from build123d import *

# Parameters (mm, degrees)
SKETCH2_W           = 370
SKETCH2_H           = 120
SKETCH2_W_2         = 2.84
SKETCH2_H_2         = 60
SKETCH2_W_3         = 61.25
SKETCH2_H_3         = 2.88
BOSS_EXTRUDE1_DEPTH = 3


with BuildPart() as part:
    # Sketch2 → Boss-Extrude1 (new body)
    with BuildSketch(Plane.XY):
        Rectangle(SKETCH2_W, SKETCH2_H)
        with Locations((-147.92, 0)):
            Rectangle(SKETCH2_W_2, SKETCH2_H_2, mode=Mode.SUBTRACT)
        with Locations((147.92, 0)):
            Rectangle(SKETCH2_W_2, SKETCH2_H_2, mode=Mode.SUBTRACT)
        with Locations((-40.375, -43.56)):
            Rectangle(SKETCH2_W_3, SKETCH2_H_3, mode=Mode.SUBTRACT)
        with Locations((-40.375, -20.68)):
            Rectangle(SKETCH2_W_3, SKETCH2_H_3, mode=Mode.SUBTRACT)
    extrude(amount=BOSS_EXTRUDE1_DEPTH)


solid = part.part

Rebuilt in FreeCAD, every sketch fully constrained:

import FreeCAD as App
import Part
import Sketcher
from FreeCAD import Vector

doc = App.newDocument("Part")
body = doc.addObject("PartDesign::Body", "Body")

sketch1 = body.newObject("Sketcher::SketchObject", "Sketch")
sketch1.AttachmentSupport = (doc.getObject("XY_Plane"), [""])
sketch1.MapMode = "FlatFace"
sketch1.addGeometry(Part.LineSegment(Vector(-185, 60, 0), Vector(-185, -60, 0)), False)
sketch1.addGeometry(Part.LineSegment(Vector(-185, -60, 0), Vector(185, -60, 0)), False)
sketch1.addGeometry(Part.LineSegment(Vector(185, -60, 0), Vector(185, 60, 0)), False)
sketch1.addGeometry(Part.LineSegment(Vector(185, 60, 0), Vector(-185, 60, 0)), False)
sketch1.addGeometry(Part.LineSegment(Vector(-9.75, -45, 0), Vector(-71, -45, 0)), False)
sketch1.addGeometry(Part.LineSegment(Vector(-71, -45, 0), Vector(-71, -42.12, 0)), False)
sketch1.addGeometry(Part.LineSegment(Vector(-71, -42.12, 0), Vector(-9.75, -42.12, 0)), False)
sketch1.addGeometry(Part.LineSegment(Vector(-9.75, -42.12, 0), Vector(-9.75, -45, 0)), False)
sketch1.addGeometry(Part.LineSegment(Vector(-9.75, -22.12, 0), Vector(-71, -22.12, 0)), False)
sketch1.addGeometry(Part.LineSegment(Vector(-71, -22.12, 0), Vector(-71, -19.24, 0)), False)
sketch1.addGeometry(Part.LineSegment(Vector(-71, -19.24, 0), Vector(-9.75, -19.24, 0)), False)
sketch1.addGeometry(Part.LineSegment(Vector(-9.75, -19.24, 0), Vector(-9.75, -22.12, 0)), False)
sketch1.addGeometry(Part.LineSegment(Vector(-146.5, -30, 0), Vector(-149.34, -30, 0)), False)
sketch1.addGeometry(Part.LineSegment(Vector(-149.34, -30, 0), Vector(-149.34, 30, 0)), False)
sketch1.addGeometry(Part.LineSegment(Vector(-149.34, 30, 0), Vector(-146.5, 30, 0)), False)
sketch1.addGeometry(Part.LineSegment(Vector(-146.5, 30, 0), Vector(-146.5, -30, 0)), False)
sketch1.addGeometry(Part.LineSegment(Vector(149.34, -30, 0), Vector(146.5, -30, 0)), False)
sketch1.addGeometry(Part.LineSegment(Vector(146.5, -30, 0), Vector(146.5, 30, 0)), False)
sketch1.addGeometry(Part.LineSegment(Vector(146.5, 30, 0), Vector(149.34, 30, 0)), False)
sketch1.addGeometry(Part.LineSegment(Vector(149.34, 30, 0), Vector(149.34, -30, 0)), False)
sketch1.addConstraint(Sketcher.Constraint("Coincident", 0, 2, 1, 1))
sketch1.addConstraint(Sketcher.Constraint("Coincident", 1, 2, 2, 1))
sketch1.addConstraint(Sketcher.Constraint("Coincident", 2, 2, 3, 1))
sketch1.addConstraint(Sketcher.Constraint("Coincident", 3, 2, 0, 1))
sketch1.addConstraint(Sketcher.Constraint("Coincident", 4, 2, 5, 1))
sketch1.addConstraint(Sketcher.Constraint("Coincident", 5, 2, 6, 1))
sketch1.addConstraint(Sketcher.Constraint("Coincident", 6, 2, 7, 1))
sketch1.addConstraint(Sketcher.Constraint("Coincident", 7, 2, 4, 1))
sketch1.addConstraint(Sketcher.Constraint("Coincident", 8, 2, 9, 1))
sketch1.addConstraint(Sketcher.Constraint("Coincident", 9, 2, 10, 1))
sketch1.addConstraint(Sketcher.Constraint("Coincident", 10, 2, 11, 1))
sketch1.addConstraint(Sketcher.Constraint("Coincident", 11, 2, 8, 1))
sketch1.addConstraint(Sketcher.Constraint("Coincident", 12, 2, 13, 1))
sketch1.addConstraint(Sketcher.Constraint("Coincident", 13, 2, 14, 1))
sketch1.addConstraint(Sketcher.Constraint("Coincident", 14, 2, 15, 1))
sketch1.addConstraint(Sketcher.Constraint("Coincident", 15, 2, 12, 1))
sketch1.addConstraint(Sketcher.Constraint("Coincident", 16, 2, 17, 1))
sketch1.addConstraint(Sketcher.Constraint("Coincident", 17, 2, 18, 1))
sketch1.addConstraint(Sketcher.Constraint("Coincident", 18, 2, 19, 1))
sketch1.addConstraint(Sketcher.Constraint("Coincident", 19, 2, 16, 1))
sketch1.addConstraint(Sketcher.Constraint("Vertical", 0))
sketch1.addConstraint(Sketcher.Constraint("Horizontal", 1))
sketch1.addConstraint(Sketcher.Constraint("Vertical", 2))
sketch1.addConstraint(Sketcher.Constraint("Horizontal", 3))
sketch1.addConstraint(Sketcher.Constraint("Horizontal", 4))
sketch1.addConstraint(Sketcher.Constraint("Vertical", 5))
sketch1.addConstraint(Sketcher.Constraint("Horizontal", 6))
sketch1.addConstraint(Sketcher.Constraint("Vertical", 7))
sketch1.addConstraint(Sketcher.Constraint("Horizontal", 8))
sketch1.addConstraint(Sketcher.Constraint("Vertical", 9))
sketch1.addConstraint(Sketcher.Constraint("Horizontal", 10))
sketch1.addConstraint(Sketcher.Constraint("Vertical", 11))
sketch1.addConstraint(Sketcher.Constraint("Horizontal", 12))
sketch1.addConstraint(Sketcher.Constraint("Vertical", 13))
sketch1.addConstraint(Sketcher.Constraint("Horizontal", 14))
sketch1.addConstraint(Sketcher.Constraint("Vertical", 15))
sketch1.addConstraint(Sketcher.Constraint("Horizontal", 16))
sketch1.addConstraint(Sketcher.Constraint("Vertical", 17))
sketch1.addConstraint(Sketcher.Constraint("Horizontal", 18))
sketch1.addConstraint(Sketcher.Constraint("Vertical", 19))
sketch1.addConstraint(Sketcher.Constraint("Symmetric", 0, 2, 2, 2, -1, 1))
sketch1.addConstraint(Sketcher.Constraint("Symmetric", 14, 2, 16, 2, -1, 1))
sketch1.addConstraint(Sketcher.Constraint("Symmetric", 12, 2, 18, 2, -1, 1))
sketch1.addConstraint(Sketcher.Constraint("Horizontal", 15, 2, 16, 2))
sketch1.addConstraint(Sketcher.Constraint("Vertical", 5, 2, 8, 2))
sketch1.addConstraint(Sketcher.Constraint("Vertical", 7, 2, 10, 2))
sketch1.addConstraint(Sketcher.Constraint("Equal", 7, 9))
sketch1.addConstraint(Sketcher.Constraint("DistanceX", 1, 1, 1, 2, 370.0))
sketch1.addConstraint(Sketcher.Constraint("DistanceY", 0, 2, 0, 1, 120.0))
sketch1.addConstraint(Sketcher.Constraint("DistanceY", 13, 1, 13, 2, 60.0))
sketch1.addConstraint(Sketcher.Constraint("DistanceX", 4, 2, -1, 1, 71.0))
sketch1.addConstraint(Sketcher.Constraint("DistanceY", 4, 2, -1, 1, 45.0))
sketch1.addConstraint(Sketcher.Constraint("DistanceY", 5, 2, 8, 2, 20.0))
sketch1.addConstraint(Sketcher.Constraint("DistanceX", 4, 2, 4, 1, 61.25))
sketch1.addConstraint(Sketcher.Constraint("DistanceX", 12, 2, 12, 1, 2.84))
sketch1.addConstraint(Sketcher.Constraint("DistanceY", 5, 1, 5, 2, 2.88))
sketch1.addConstraint(Sketcher.Constraint("DistanceX", 14, 2, -1, 1, 146.5))
pad1 = body.newObject("PartDesign::Pad", "Pad")
pad1.Profile = sketch1
pad1.Length = 3

doc.recompute()
